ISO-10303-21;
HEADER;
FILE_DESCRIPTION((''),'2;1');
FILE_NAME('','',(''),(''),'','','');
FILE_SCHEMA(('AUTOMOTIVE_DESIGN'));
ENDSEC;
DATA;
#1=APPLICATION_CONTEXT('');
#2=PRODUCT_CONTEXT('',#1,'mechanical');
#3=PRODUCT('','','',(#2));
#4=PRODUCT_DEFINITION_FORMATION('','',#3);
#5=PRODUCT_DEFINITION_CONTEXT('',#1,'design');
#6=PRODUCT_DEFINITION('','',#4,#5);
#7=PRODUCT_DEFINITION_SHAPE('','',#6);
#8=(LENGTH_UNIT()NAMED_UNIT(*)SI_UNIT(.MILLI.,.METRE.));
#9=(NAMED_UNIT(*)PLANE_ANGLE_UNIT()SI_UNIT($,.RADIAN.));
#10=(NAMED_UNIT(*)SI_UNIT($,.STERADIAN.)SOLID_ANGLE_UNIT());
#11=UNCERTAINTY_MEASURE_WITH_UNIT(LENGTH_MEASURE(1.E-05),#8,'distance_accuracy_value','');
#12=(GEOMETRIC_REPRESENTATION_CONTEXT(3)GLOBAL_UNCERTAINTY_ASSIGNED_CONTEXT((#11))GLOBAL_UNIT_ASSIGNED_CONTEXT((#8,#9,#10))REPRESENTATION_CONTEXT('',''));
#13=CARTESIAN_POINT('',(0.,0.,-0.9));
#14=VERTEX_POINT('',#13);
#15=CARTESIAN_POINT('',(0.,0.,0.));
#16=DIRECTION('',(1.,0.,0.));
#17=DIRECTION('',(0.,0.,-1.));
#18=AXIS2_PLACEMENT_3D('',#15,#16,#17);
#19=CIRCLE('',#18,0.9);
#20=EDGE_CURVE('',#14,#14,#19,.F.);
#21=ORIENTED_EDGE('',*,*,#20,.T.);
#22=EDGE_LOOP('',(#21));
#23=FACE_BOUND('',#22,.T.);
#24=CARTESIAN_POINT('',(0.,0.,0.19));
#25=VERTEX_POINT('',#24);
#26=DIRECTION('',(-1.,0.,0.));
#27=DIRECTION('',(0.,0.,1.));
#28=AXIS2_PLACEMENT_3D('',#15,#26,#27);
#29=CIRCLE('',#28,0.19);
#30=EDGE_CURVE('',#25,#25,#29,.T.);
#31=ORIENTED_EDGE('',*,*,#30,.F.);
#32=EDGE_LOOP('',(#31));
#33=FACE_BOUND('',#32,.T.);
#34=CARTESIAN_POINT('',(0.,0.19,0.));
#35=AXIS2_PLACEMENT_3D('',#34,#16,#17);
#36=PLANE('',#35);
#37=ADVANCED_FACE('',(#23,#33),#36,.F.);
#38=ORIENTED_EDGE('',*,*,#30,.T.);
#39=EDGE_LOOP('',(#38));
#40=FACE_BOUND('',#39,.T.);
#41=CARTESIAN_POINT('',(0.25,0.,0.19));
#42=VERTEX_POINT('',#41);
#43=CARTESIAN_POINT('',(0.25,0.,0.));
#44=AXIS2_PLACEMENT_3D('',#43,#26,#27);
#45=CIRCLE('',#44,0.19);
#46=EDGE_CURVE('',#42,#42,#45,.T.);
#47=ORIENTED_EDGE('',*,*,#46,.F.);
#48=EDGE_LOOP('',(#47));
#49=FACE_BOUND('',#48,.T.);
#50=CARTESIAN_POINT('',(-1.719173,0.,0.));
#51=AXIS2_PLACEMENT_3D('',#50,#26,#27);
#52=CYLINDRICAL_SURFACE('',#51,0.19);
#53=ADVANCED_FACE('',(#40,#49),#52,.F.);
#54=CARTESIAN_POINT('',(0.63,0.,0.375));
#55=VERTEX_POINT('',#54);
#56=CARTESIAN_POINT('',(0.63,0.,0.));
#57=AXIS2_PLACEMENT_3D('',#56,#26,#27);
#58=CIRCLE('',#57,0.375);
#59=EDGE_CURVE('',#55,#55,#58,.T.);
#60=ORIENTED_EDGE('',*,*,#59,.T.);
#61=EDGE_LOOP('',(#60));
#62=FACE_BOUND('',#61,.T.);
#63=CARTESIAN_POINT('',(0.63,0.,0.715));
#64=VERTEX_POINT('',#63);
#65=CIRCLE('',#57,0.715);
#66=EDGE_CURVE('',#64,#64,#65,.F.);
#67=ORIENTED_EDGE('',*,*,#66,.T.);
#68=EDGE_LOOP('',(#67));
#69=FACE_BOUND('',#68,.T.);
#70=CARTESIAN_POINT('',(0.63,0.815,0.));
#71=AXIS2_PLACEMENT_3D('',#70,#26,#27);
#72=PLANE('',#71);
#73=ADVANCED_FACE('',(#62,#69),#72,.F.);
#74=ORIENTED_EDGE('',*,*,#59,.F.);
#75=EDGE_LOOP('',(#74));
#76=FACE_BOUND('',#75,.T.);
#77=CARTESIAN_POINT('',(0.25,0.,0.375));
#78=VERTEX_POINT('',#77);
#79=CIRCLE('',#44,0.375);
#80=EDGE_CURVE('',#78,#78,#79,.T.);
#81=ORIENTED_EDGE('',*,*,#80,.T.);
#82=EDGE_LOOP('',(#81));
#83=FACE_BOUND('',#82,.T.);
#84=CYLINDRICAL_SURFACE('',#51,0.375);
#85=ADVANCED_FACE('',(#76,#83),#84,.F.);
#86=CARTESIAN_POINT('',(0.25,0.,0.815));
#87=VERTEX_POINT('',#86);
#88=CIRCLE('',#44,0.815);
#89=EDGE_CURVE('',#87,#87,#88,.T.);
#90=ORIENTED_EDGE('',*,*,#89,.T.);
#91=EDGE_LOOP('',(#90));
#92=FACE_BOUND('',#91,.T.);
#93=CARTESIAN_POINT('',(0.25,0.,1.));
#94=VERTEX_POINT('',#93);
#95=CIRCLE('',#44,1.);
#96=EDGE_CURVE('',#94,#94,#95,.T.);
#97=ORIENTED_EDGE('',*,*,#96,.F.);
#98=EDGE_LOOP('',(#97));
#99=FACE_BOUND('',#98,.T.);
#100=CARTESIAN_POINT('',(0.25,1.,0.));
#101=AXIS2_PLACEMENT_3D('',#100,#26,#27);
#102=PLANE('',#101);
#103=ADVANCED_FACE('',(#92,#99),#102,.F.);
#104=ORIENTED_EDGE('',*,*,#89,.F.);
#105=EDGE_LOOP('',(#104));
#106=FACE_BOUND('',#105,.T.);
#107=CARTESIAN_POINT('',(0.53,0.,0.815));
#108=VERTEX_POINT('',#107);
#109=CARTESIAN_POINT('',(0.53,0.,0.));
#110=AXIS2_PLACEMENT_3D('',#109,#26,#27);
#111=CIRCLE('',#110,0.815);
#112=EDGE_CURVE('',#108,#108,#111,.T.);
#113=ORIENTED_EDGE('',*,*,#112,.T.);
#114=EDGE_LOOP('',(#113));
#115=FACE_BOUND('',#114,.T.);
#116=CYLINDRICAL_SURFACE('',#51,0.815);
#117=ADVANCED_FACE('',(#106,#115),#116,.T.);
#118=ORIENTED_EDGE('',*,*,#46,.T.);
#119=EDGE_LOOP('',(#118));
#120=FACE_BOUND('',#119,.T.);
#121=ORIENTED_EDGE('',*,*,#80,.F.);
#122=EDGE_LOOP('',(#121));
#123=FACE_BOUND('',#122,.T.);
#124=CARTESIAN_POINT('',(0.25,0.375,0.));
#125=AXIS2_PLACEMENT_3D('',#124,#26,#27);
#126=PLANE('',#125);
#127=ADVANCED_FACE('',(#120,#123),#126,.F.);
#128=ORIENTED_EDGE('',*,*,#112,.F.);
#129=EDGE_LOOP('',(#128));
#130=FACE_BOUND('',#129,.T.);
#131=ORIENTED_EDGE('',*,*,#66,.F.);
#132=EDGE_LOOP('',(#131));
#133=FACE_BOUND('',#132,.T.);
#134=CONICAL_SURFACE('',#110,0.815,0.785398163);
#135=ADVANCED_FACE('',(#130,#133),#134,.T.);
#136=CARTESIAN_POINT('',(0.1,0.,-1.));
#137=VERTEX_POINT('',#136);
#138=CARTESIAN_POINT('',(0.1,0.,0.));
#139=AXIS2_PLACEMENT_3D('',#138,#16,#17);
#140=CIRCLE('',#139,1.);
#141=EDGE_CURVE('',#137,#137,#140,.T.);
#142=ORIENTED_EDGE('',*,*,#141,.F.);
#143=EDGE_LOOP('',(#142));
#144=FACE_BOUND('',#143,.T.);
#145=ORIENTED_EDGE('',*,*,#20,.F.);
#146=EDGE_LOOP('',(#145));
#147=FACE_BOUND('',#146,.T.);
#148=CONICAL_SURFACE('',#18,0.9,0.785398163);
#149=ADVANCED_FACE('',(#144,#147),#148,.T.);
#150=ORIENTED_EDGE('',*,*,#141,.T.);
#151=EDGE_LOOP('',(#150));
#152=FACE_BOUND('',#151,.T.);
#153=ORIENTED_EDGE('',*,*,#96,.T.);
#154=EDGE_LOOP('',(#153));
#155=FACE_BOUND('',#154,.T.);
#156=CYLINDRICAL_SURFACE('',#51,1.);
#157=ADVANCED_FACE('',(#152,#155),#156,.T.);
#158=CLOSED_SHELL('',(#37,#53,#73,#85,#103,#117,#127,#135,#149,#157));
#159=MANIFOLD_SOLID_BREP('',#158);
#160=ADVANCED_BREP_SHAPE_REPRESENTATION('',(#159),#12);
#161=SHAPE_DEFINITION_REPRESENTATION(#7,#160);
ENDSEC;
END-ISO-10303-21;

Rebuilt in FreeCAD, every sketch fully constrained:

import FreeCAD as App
import Part
import Sketcher

V = App.Vector
Q = App.Units.Quantity


def edges_at(feature, points):
    """Names of the edges that pass closest to the given points."""
    edges = feature.Shape.Edges
    near = lambda p: min(range(len(edges)), key=lambda i: edges[i].distToShape(Part.Vertex(*p))[0])
    return sorted({f"Edge{near(p) + 1}" for p in points})


def add_polygon(sketch, points):
    """Adds a closed chain of lines whose ends are joined by coincident constraints."""
    first, n = sketch.GeometryCount, len(points)
    for a, b in zip(points, points[1:] + points[:1]):
        sketch.addGeometry(Part.LineSegment(App.Vector(*a, 0), App.Vector(*b, 0)), False)
    for i in range(n):
        sketch.addConstraint(Sketcher.Constraint("Coincident", first + i, 2, first + (i + 1) % n, 1))

doc = App.newDocument("Part")
body = doc.addObject("PartDesign::Body", "Body")

sketch1 = body.newObject("Sketcher::SketchObject", "Sketch")
sketch1.AttachmentSupport = (doc.getObject("XY_Plane"), [""])
sketch1.MapMode = "FlatFace"
add_polygon(sketch1, [(0, 1), (0, 0.19), (0.25, 0.19), (0.25, 0.38), (0.63, 0.38), (0.63, 0.81), (0.25, 0.81), (0.25, 1)])
sketch1.addConstraint([
    Sketcher.Constraint("Vertical", 0),
    Sketcher.Constraint("Horizontal", 1),
    Sketcher.Constraint("Vertical", 2),
    Sketcher.Constraint("Horizontal", 3),
    Sketcher.Constraint("Vertical", 4),
    Sketcher.Constraint("Horizontal", 5),
    Sketcher.Constraint("Vertical", 6),
    Sketcher.Constraint("Horizontal", 7),
    Sketcher.Constraint("PointOnObject", 0, 2, -2),
    Sketcher.Constraint("Vertical", 2, 2, 5, 2),
    Sketcher.Constraint("Equal", 2, 6),
    Sketcher.Constraint("DistanceY", -1, 1, 6, 2, Q("1 mm")),
    Sketcher.Constraint("DistanceX", 1, 1, 1, 2, Q("0.25 mm")),
    Sketcher.Constraint("DistanceX", 3, 1, 3, 2, Q("0.38 mm")),
    Sketcher.Constraint("DistanceY", 0, 2, 0, 1, Q("0.81 mm")),
    Sketcher.Constraint("DistanceY", 4, 1, 4, 2, Q("0.44 mm")),
])
revolution = body.newObject("PartDesign::Revolution", "Revolution")
revolution.Profile = sketch1
revolution.ReferenceAxis = (sketch1, ["H_Axis"])
revolution.Angle = 360
doc.recompute()

chamfer = body.newObject("PartDesign::Chamfer", "Chamfer")
chamfer.Base = (revolution, edges_at(revolution, [(0.63, -0.815, 0), (0, -1, 0)]))
chamfer.Size = 0.1

doc.recompute()
